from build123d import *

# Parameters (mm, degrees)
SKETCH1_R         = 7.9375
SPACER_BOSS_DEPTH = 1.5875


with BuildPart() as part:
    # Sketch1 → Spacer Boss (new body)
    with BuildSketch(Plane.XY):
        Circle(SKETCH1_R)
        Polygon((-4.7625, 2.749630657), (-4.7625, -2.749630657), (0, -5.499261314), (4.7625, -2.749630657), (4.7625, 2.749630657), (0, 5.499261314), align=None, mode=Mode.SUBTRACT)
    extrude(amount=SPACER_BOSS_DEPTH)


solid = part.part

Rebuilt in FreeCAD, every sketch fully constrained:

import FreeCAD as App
import Part
import Sketcher
Q = App.Units.Quantity


def add_polygon(sketch, points):
    """Adds a closed chain of lines whose ends are joined by coincident constraints."""
    first, n = sketch.GeometryCount, len(points)
    for a, b in zip(points, points[1:] + points[:1]):
        sketch.addGeometry(Part.LineSegment(App.Vector(*a, 0), App.Vector(*b, 0)), False)
    for i in range(n):
        sketch.addConstraint(Sketcher.Constraint("Coincident", first + i, 2, first + (i + 1) % n, 1))

doc = App.newDocument("Part")
body = doc.addObject("PartDesign::Body", "Body")

# Sketch on XY plane
sketch1 = body.newObject("Sketcher::SketchObject", "Sketch")
sketch1.AttachmentSupport = (doc.getObject("XY_Plane"), [""])
sketch1.MapMode = "FlatFace"
sketch1.addGeometry(Part.Circle(App.Vector(0, 0, 0), App.Vector(0, 0, 1), 8), False)  # 0
add_polygon(sketch1, [(-5, -3), (-5, 3), (0, 5), (5, 3), (5, -3), (0, -5)])  # lines 1-6
sketch1.addConstraint(Sketcher.Constraint("Vertical", 1))
sketch1.addConstraint(Sketcher.Constraint("Vertical", 4))
sketch1.addConstraint(Sketcher.Constraint("Coincident", 0, 3, -1, 1))
sketch1.addConstraint(Sketcher.Constraint("Symmetric", 1, 2, 4, 2, -1, 1))
sketch1.addConstraint(Sketcher.Constraint("Symmetric", 2, 2, 5, 2, -1, 1))
sketch1.addConstraint(Sketcher.Constraint("PointOnObject", 2, 2, -2))
sketch1.addConstraint(Sketcher.Constraint("Parallel", 3, 6))
sketch1.addConstraint(Sketcher.Constraint("Horizontal", 1, 2, 3, 2))
sketch1.addConstraint(Sketcher.Constraint("Diameter", 0, Q("0.625 in")))
sketch1.addConstraint(Sketcher.Constraint("Angle", 2, Q("30 deg")))
sketch1.addConstraint(Sketcher.Constraint("DistanceX", 1, 2, -1, 1, Q("0.1875 in")))
sketch1.addConstraint(Sketcher.Constraint("DistanceY", 1, 1, 1, 2, 5.499261))
pad1 = body.newObject("PartDesign::Pad", "Pad")
pad1.Profile = sketch1
pad1.Length = Q("0.0625 in")

doc.recompute()
